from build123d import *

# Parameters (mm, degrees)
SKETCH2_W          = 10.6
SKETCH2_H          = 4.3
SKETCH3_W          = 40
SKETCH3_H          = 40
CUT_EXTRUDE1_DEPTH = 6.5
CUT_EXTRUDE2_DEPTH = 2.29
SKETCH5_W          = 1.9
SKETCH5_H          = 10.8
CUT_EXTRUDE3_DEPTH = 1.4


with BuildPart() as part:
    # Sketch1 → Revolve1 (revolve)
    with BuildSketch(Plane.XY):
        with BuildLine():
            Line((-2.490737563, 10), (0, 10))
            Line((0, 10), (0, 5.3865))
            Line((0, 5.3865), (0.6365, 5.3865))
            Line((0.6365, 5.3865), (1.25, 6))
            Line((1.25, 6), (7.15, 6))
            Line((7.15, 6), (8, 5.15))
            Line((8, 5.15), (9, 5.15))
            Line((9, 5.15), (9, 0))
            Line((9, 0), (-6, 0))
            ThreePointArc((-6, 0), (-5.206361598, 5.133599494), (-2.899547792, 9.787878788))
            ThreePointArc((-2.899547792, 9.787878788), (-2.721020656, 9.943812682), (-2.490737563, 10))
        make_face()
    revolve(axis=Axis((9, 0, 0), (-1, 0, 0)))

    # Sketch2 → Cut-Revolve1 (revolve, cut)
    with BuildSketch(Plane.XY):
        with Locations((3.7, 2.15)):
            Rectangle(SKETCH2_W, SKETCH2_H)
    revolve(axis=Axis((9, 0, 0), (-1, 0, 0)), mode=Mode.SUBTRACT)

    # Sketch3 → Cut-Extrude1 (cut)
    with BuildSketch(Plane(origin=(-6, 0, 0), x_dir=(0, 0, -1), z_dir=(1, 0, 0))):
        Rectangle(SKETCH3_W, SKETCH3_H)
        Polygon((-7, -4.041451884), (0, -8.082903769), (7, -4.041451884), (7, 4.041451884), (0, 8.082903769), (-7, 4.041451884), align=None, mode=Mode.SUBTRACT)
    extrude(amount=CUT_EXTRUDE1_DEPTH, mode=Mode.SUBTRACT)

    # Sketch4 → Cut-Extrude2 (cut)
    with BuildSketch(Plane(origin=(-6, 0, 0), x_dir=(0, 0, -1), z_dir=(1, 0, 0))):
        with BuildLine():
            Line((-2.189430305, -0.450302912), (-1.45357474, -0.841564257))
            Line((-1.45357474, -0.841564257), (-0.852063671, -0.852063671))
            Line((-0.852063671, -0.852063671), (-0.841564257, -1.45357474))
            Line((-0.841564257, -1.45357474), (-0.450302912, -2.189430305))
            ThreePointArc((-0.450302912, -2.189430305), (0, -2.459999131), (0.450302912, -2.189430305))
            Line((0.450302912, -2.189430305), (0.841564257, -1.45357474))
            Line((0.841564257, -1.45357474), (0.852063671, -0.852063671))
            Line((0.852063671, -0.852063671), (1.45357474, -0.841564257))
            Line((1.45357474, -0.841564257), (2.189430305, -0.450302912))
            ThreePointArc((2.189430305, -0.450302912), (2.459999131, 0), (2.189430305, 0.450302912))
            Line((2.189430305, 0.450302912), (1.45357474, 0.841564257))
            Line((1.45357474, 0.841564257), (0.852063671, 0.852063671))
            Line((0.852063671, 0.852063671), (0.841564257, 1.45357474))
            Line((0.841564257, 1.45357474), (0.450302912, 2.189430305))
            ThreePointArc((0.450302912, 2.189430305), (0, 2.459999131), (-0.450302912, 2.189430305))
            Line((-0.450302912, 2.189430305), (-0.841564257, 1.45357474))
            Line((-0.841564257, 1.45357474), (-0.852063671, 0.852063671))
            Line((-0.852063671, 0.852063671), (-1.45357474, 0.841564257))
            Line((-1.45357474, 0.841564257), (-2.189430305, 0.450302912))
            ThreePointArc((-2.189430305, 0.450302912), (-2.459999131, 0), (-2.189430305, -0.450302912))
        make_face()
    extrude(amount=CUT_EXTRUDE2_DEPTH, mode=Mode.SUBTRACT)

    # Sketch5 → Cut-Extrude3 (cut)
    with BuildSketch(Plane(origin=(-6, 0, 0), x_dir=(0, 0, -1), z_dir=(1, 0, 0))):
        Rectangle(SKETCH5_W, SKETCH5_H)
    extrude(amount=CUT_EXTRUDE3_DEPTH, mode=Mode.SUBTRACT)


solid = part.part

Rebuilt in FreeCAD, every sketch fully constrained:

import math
import FreeCAD as App
import Part
import Sketcher

V = App.Vector
Q = App.Units.Quantity

doc = App.newDocument("Part")
params = doc.addObject("Spreadsheet::Sheet", "Params")
for row, (alias, value) in enumerate([
    ("sketch1_radius", "17 mm"),
    ("sketch1_radius2", "0.5 mm"),
    ("sketch1_width", "15 mm"),
    ("sketch1_width2", "1 mm"),
    ("sketch1_width3", "5.9 mm"),
    ("revolution_angle", "360 deg"),
    ("sketch2_width", "10.6 mm"),
    ("sketch2_height", "4.3 mm"),
    ("groove_angle", "360 deg"),
    ("sketch3_width", "40 mm"),
    ("pocket1_length", "6.5 mm"),
    ("sketch4_radius", "0.51 mm"),
    ("pocket2_length", "2.29 mm"),
    ("sketch5_width", "10.8 mm"),
    ("sketch5_height", "1.9 mm"),
    ("pocket3_length", "1.4 mm"),
], start=1):
    params.set(f"A{row}", alias)
    params.set(f"B{row}", "=" + value)
    params.setAlias(f"B{row}", alias)

body = doc.addObject("PartDesign::Body", "Body")

# Sketch on XY plane
sketch1 = body.newObject("Sketcher::SketchObject", "Sketch")
sketch1.AttachmentSupport = (doc.getObject("XY_Plane"), [""])
sketch1.MapMode = "FlatFace"
sketch1.addGeometry([
    Part.LineSegment(V(0, 10, 0), V(-2.49, 10, 0)),  # 0
    Part.ArcOfCircle(Part.Circle(V(-2.49, 9.5, 0), V(0, 0, 1), 0.5), math.radians(90), math.radians(145)),  # 1
    Part.ArcOfCircle(Part.Circle(V(11, 0, 0), V(0, 0, 1), 17), math.radians(145), math.radians(180)),  # 2
    Part.LineSegment(V(-6, 0, 0), V(9, 0, 0)),  # 3
    Part.LineSegment(V(9, 0, 0), V(9, 5.15, 0)),  # 4
    Part.LineSegment(V(9, 5.15, 0), V(8, 5.15, 0)),  # 5
    Part.LineSegment(V(8, 5.15, 0), V(7.15, 6, 0)),  # 6
    Part.LineSegment(V(7.15, 6, 0), V(1.25, 6, 0)),  # 7
    Part.LineSegment(V(1.25, 6, 0), V(0.64, 5.39, 0)),  # 8
    Part.LineSegment(V(0.64, 5.39, 0), V(0, 5.39, 0)),  # 9
    Part.LineSegment(V(0, 5.39, 0), V(0, 10, 0)),  # 10
], False)
sketch1.addConstraint([
    Sketcher.Constraint("Tangent", 0, 2, 1, 1),
    Sketcher.Constraint("Tangent", 1, 2, 2, 1),
    Sketcher.Constraint("Coincident", 2, 2, 3, 1),
    Sketcher.Constraint("Coincident", 3, 2, 4, 1),
    Sketcher.Constraint("Coincident", 4, 2, 5, 1),
    Sketcher.Constraint("Coincident", 5, 2, 6, 1),
    Sketcher.Constraint("Coincident", 6, 2, 7, 1),
    Sketcher.Constraint("Coincident", 7, 2, 8, 1),
    Sketcher.Constraint("Coincident", 8, 2, 9, 1),
    Sketcher.Constraint("Coincident", 9, 2, 10, 1),
    Sketcher.Constraint("Coincident", 10, 2, 0, 1),
    Sketcher.Constraint("Horizontal", 0),
    Sketcher.Constraint("Horizontal", 3),
    Sketcher.Constraint("Vertical", 4),
    Sketcher.Constraint("Horizontal", 5),
    Sketcher.Constraint("Horizontal", 7),
    Sketcher.Constraint("Horizontal", 9),
    Sketcher.Constraint("Vertical", 10),
    Sketcher.Constraint("PointOnObject", 2, 3, -1),
    Sketcher.Constraint("PointOnObject", 2, 2, -1),
    Sketcher.Constraint("PointOnObject", 9, 2, -2),
    Sketcher.Constraint("Perpendicular", 6, 8),
    Sketcher.Constraint("Radius", 2, Q("17 mm")),
    Sketcher.Constraint("Radius", 1, Q("0.5 mm")),
    Sketcher.Constraint("DistanceX", 3, 1, 3, 2, Q("15 mm")),
    Sketcher.Constraint("DistanceX", 5, 2, 5, 1, Q("1 mm")),
    Sketcher.Constraint("Angle", 6, Q("135 deg")),
    Sketcher.Constraint("DistanceX", 7, 2, 7, 1, Q("5.9 mm")),
    Sketcher.Constraint("DistanceX", -1, 1, 2, 3, Q("11 mm")),
    Sketcher.Constraint("DistanceY", -1, 1, 0, 2, Q("10 mm")),
    Sketcher.Constraint("DistanceY", -1, 1, 6, 2, Q("6 mm")),
    Sketcher.Constraint("DistanceY", 4, 1, 4, 2, Q("5.15 mm")),
    Sketcher.Constraint("DistanceX", 9, 2, 9, 1, Q("0.6365 mm")),
])
sketch1.setExpression("Constraints[22]", "Params.sketch1_radius")
sketch1.setExpression("Constraints[23]", "Params.sketch1_radius2")
sketch1.setExpression("Constraints[24]", "Params.sketch1_width")
sketch1.setExpression("Constraints[25]", "Params.sketch1_width2")
sketch1.setExpression("Constraints[27]", "Params.sketch1_width3")
revolution = body.newObject("PartDesign::Revolution", "Revolution")
revolution.Profile = sketch1
revolution.ReferenceAxis = (sketch1, ["H_Axis"])
revolution.setExpression("Angle", "Params.revolution_angle")

# Sketch on XY plane
sketch2 = body.newObject("Sketcher::SketchObject", "Sketch001")
sketch2.AttachmentSupport = (doc.getObject("XY_Plane"), [""])
sketch2.MapMode = "FlatFace"
sketch2.addGeometry([
    Part.LineSegment(V(-1.6, 4.3, 0), V(-1.6, 0, 0)),
    Part.LineSegment(V(-1.6, 0, 0), V(9, 0, 0)),
    Part.LineSegment(V(9, 0, 0), V(9, 4.3, 0)),
    Part.LineSegment(V(9, 4.3, 0), V(-1.6, 4.3, 0)),
], False)
sketch2.addConstraint([
    Sketcher.Constraint("Coincident", 0, 2, 1, 1),
    Sketcher.Constraint("Coincident", 1, 2, 2, 1),
    Sketcher.Constraint("Coincident", 2, 2, 3, 1),
    Sketcher.Constraint("Coincident", 3, 2, 0, 1),
    Sketcher.Constraint("Vertical", 0),
    Sketcher.Constraint("Horizontal", 1),
    Sketcher.Constraint("Vertical", 2),
    Sketcher.Constraint("Horizontal", 3),
    Sketcher.Constraint("PointOnObject", 0, 2, -1),
    Sketcher.Constraint("DistanceX", 1, 1, 1, 2, Q("10.6 mm")),
    Sketcher.Constraint("DistanceY", 0, 2, 0, 1, Q("4.3 mm")),
    Sketcher.Constraint("DistanceX", -1, 1, 1, 2, Q("9 mm")),
])
sketch2.setExpression("Constraints[9]", "Params.sketch2_width")
sketch2.setExpression("Constraints[10]", "Params.sketch2_height")
groove = body.newObject("PartDesign::Groove", "Groove")
groove.Profile = sketch2
groove.ReferenceAxis = (sketch2, ["H_Axis"])
groove.setExpression("Angle", "Params.groove_angle")

# Sketch on YZ plane
sketch3 = body.newObject("Sketcher::SketchObject", "Sketch002")
sketch3.AttachmentSupport = (doc.getObject("YZ_Plane"), [""])
sketch3.MapMode = "FlatFace"
sketch3.AttachmentOffset = App.Placement(V(0, 0, -6), App.Rotation())
sketch3.addGeometry([
    Part.LineSegment(V(20, 20, 0), V(-20, 20, 0)),  # 0
    Part.LineSegment(V(-20, 20, 0), V(-20, -20, 0)),  # 1
    Part.LineSegment(V(-20, -20, 0), V(20, -20, 0)),  # 2
    Part.LineSegment(V(20, -20, 0), V(20, 20, 0)),  # 3
    Part.LineSegment(V(-8, 0, 0), V(-4, 7, 0)),  # 4
    Part.LineSegment(V(-4, 7, 0), V(4, 7, 0)),  # 5
    Part.LineSegment(V(4, 7, 0), V(8, 0, 0)),  # 6
    Part.LineSegment(V(8, 0, 0), V(4, -7, 0)),  # 7
    Part.LineSegment(V(4, -7, 0), V(-4, -7, 0)),  # 8
    Part.LineSegment(V(-4, -7, 0), V(-8, 0, 0)),  # 9
], False)
sketch3.addConstraint([
    Sketcher.Constraint("Coincident", 0, 2, 1, 1),
    Sketcher.Constraint("Coincident", 1, 2, 2, 1),
    Sketcher.Constraint("Coincident", 2, 2, 3, 1),
    Sketcher.Constraint("Coincident", 3, 2, 0, 1),
    Sketcher.Constraint("Coincident", 4, 2, 5, 1),
    Sketcher.Constraint("Coincident", 5, 2, 6, 1),
    Sketcher.Constraint("Coincident", 6, 2, 7, 1),
    Sketcher.Constraint("Coincident", 7, 2, 8, 1),
    Sketcher.Constraint("Coincident", 8, 2, 9, 1),
    Sketcher.Constraint("Coincident", 9, 2, 4, 1),
    Sketcher.Constraint("Horizontal", 0),
    Sketcher.Constraint("Vertical", 1),
    Sketcher.Constraint("Horizontal", 2),
    Sketcher.Constraint("Vertical", 3),
    Sketcher.Constraint("Horizontal", 5),
    Sketcher.Constraint("Horizontal", 8),
    Sketcher.Constraint("Symmetric", 0, 2, 2, 2, -1, 1),
    Sketcher.Constraint("Symmetric", 4, 2, 7, 2, -1, 1),
    Sketcher.Constraint("Symmetric", 6, 2, 9, 2, -1, 1),
    Sketcher.Constraint("PointOnObject", 6, 2, -1),
    Sketcher.Constraint("Parallel", 6, 9),
    Sketcher.Constraint("Vertical", 5, 2, 7, 2),
    Sketcher.Constraint("Equal", 2, 1),
    Sketcher.Constraint("DistanceX", 0, 2, 0, 1, Q("40 mm")),
    Sketcher.Constraint("Angle", 4, Q("60 deg")),
    Sketcher.Constraint("DistanceY", -1, 1, 4, 2, Q("7 mm")),
    Sketcher.Constraint("DistanceX", 5, 1, 5, 2, Q("8.082904 mm")),
])
sketch3.setExpression("Constraints[23]", "Params.sketch3_width")
pocket1 = body.newObject("PartDesign::Pocket", "Pocket")
pocket1.Profile = sketch3
pocket1.setExpression("Length", "Params.pocket1_length")
pocket1.Reversed = True

# Sketch on YZ plane
sketch4 = body.newObject("Sketcher::SketchObject", "Sketch003")
sketch4.AttachmentSupport = (doc.getObject("YZ_Plane"), [""])
sketch4.MapMode = "FlatFace"
sketch4.AttachmentOffset = App.Placement(V(0, 0, -6), App.Rotation())
sketch4.addGeometry([
    Part.LineSegment(V(-0.5, 2.2, 0), V(-0.8, 1.5, 0)),  # 0
    Part.LineSegment(V(-0.8, 1.5, 0), V(-0.9, 0.9, 0)),  # 1
    Part.LineSegment(V(-0.9, 0.9, 0), V(-1.5, 0.8, 0)),  # 2
    Part.LineSegment(V(-1.5, 0.8, 0), V(-2.2, 0.5, 0)),  # 3
    Part.ArcOfCircle(Part.Circle(V(-1.9, 0, 0), V(0, 0, 1), 0.5), math.radians(118), math.radians(242)),  # 4
    Part.LineSegment(V(-2.2, -0.5, 0), V(-1.5, -0.8, 0)),  # 5
    Part.LineSegment(V(-1.5, -0.8, 0), V(-0.9, -0.9, 0)),  # 6
    Part.LineSegment(V(-0.9, -0.9, 0), V(-0.8, -1.5, 0)),  # 7
    Part.LineSegment(V(-0.8, -1.5, 0), V(-0.5, -2.2, 0)),  # 8
    Part.ArcOfCircle(Part.Circle(V(0, -1.9, 0), V(0, 0, 1), 0.5), math.radians(-152), math.radians(-28)),  # 9
    Part.LineSegment(V(0.5, -2.2, 0), V(0.8, -1.5, 0)),  # 10
    Part.LineSegment(V(0.8, -1.5, 0), V(0.9, -0.9, 0)),  # 11
    Part.LineSegment(V(0.9, -0.9, 0), V(1.5, -0.8, 0)),  # 12
    Part.LineSegment(V(1.5, -0.8, 0), V(2.2, -0.5, 0)),  # 13
    Part.ArcOfCircle(Part.Circle(V(1.9, 0, 0), V(0, 0, 1), 0.5), math.radians(-62), math.radians(62)),  # 14
    Part.LineSegment(V(2.2, 0.5, 0), V(1.5, 0.8, 0)),  # 15
    Part.LineSegment(V(1.5, 0.8, 0), V(0.9, 0.9, 0)),  # 16
    Part.LineSegment(V(0.9, 0.9, 0), V(0.8, 1.5, 0)),  # 17
    Part.LineSegment(V(0.8, 1.5, 0), V(0.5, 2.2, 0)),  # 18
    Part.ArcOfCircle(Part.Circle(V(0, 1.9, 0), V(0, 0, 1), 0.5), math.radians(28), math.radians(152)),  # 19
], False)
sketch4.addConstraint([
    Sketcher.Constraint("Coincident", 0, 2, 1, 1),
    Sketcher.Constraint("Coincident", 1, 2, 2, 1),
    Sketcher.Constraint("Coincident", 2, 2, 3, 1),
    Sketcher.Constraint("Tangent", 3, 2, 4, 1),
    Sketcher.Constraint("Tangent", 4, 2, 5, 1),
    Sketcher.Constraint("Coincident", 5, 2, 6, 1),
    Sketcher.Constraint("Coincident", 6, 2, 7, 1),
    Sketcher.Constraint("Coincident", 7, 2, 8, 1),
    Sketcher.Constraint("Tangent", 8, 2, 9, 1),
    Sketcher.Constraint("Tangent", 9, 2, 10, 1),
    Sketcher.Constraint("Coincident", 10, 2, 11, 1),
    Sketcher.Constraint("Coincident", 11, 2, 12, 1),
    Sketcher.Constraint("Coincident", 12, 2, 13, 1),
    Sketcher.Constraint("Tangent", 13, 2, 14, 1),
    Sketcher.Constraint("Tangent", 14, 2, 15, 1),
    Sketcher.Constraint("Coincident", 15, 2, 16, 1),
    Sketcher.Constraint("Coincident", 16, 2, 17, 1),
    Sketcher.Constraint("Coincident", 17, 2, 18, 1),
    Sketcher.Constraint("Tangent", 18, 2, 19, 1),
    Sketcher.Constraint("Tangent", 19, 2, 0, 1),
    Sketcher.Constraint("Equal", 4, 9),
    Sketcher.Constraint("Equal", 9, 14),
    Sketcher.Constraint("Equal", 14, 19),
    Sketcher.Constraint("Symmetric", 4, 3, 14, 3, -1, 1),
    Sketcher.Constraint("Symmetric", 9, 3, 19, 3, -1, 1),
    Sketcher.Constraint("Symmetric", 0, 2, 10, 2, -1, 1),
    Sketcher.Constraint("Symmetric", 1, 2, 11, 2, -1, 1),
    Sketcher.Constraint("Symmetric", 2, 2, 12, 2, -1, 1),
    Sketcher.Constraint("Symmetric", 5, 2, 15, 2, -1, 1),
    Sketcher.Constraint("Symmetric", 6, 2, 16, 2, -1, 1),
    Sketcher.Constraint("Symmetric", 7, 2, 17, 2, -1, 1),
    Sketcher.Constraint("Symmetric", 8, 2, 9, 2, -2),
    Sketcher.Constraint("Symmetric", 6, 2, 11, 2, -2),
    Sketcher.Constraint("Symmetric", 5, 2, 12, 2, -2),
    Sketcher.Constraint("PointOnObject", 4, 3, -1),
    Sketcher.Constraint("Perpendicular", 0, 5),
    Sketcher.Constraint("Perpendicular", 1, 6),
    Sketcher.Constraint("Perpendicular", 2, 7),
    Sketcher.Constraint("Equal", 1, 2),
    Sketcher.Constraint("Equal", 0, 3),
    Sketcher.Constraint("Angle", 0, Q("-118 deg")),
    Sketcher.Constraint("Angle", 1, Q("-91 deg")),
    Sketcher.Constraint("Radius", 4, Q("0.51 mm")),
    Sketcher.Constraint("DistanceX", 4, 3, 14, 3, Q("3.899998 mm")),
    Sketcher.Constraint("DistanceX", 1, 2, 0, 2, Q("0.010499 mm")),
])
sketch4.setExpression("Constraints[42]", "Params.sketch4_radius")
pocket2 = body.newObject("PartDesign::Pocket", "Pocket001")
pocket2.Profile = sketch4
pocket2.setExpression("Length", "Params.pocket2_length")
pocket2.Reversed = True

# Sketch on YZ plane
sketch5 = body.newObject("Sketcher::SketchObject", "Sketch004")
sketch5.AttachmentSupport = (doc.getObject("YZ_Plane"), [""])
sketch5.MapMode = "FlatFace"
sketch5.AttachmentOffset = App.Placement(V(0, 0, -6), App.Rotation())
sketch5.addGeometry([
    Part.LineSegment(V(5.4, 0.9, 0), V(-5.4, 0.9, 0)),
    Part.LineSegment(V(-5.4, 0.9, 0), V(-5.4, -0.9, 0)),
    Part.LineSegment(V(-5.4, -0.9, 0), V(5.4, -0.9, 0)),
    Part.LineSegment(V(5.4, -0.9, 0), V(5.4, 0.9, 0)),
], False)
sketch5.addConstraint([
    Sketcher.Constraint("Coincident", 0, 2, 1, 1),
    Sketcher.Constraint("Coincident", 1, 2, 2, 1),
    Sketcher.Constraint("Coincident", 2, 2, 3, 1),
    Sketcher.Constraint("Coincident", 3, 2, 0, 1),
    Sketcher.Constraint("Horizontal", 0),
    Sketcher.Constraint("Vertical", 1),
    Sketcher.Constraint("Horizontal", 2),
    Sketcher.Constraint("Vertical", 3),
    Sketcher.Constraint("Symmetric", 0, 2, 2, 2, -1, 1),
    Sketcher.Constraint("DistanceX", 0, 2, 0, 1, Q("10.8 mm")),
    Sketcher.Constraint("DistanceY", 1, 2, 1, 1, Q("1.9 mm")),
])
sketch5.setExpression("Constraints[9]", "Params.sketch5_width")
sketch5.setExpression("Constraints[10]", "Params.sketch5_height")
pocket3 = body.newObject("PartDesign::Pocket", "Pocket002")
pocket3.Profile = sketch5
pocket3.setExpression("Length", "Params.pocket3_length")
pocket3.Reversed = True

doc.recompute()
